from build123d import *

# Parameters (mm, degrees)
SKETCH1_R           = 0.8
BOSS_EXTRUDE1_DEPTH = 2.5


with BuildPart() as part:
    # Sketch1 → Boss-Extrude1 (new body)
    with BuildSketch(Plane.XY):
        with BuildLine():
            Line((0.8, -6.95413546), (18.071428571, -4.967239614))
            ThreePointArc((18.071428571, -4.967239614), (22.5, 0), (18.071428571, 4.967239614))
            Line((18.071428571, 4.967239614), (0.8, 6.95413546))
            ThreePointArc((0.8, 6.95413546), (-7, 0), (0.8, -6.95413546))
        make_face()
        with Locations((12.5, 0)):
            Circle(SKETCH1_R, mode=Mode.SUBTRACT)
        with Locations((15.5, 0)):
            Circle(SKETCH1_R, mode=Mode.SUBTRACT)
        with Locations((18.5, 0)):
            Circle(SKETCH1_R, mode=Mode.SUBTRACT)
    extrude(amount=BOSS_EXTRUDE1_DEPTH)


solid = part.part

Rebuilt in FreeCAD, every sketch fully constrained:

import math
import FreeCAD as App
import Part
import Sketcher
from FreeCAD import Vector
Q = App.Units.Quantity

doc = App.newDocument("Part")
params = doc.addObject("Spreadsheet::Sheet", "Params")
for row, (alias, value) in enumerate([
    ("sketch1_radius", "5 mm"),
    ("sketch1_radius2", "7 mm"),
    ("sketch1_diameter", "1.6 mm"),
    ("pad1_length", "2.5 mm"),
], start=1):
    params.set(f"A{row}", alias)
    params.set(f"B{row}", "=" + value)
    params.setAlias(f"B{row}", alias)

body = doc.addObject("PartDesign::Body", "Body")

sketch1 = body.newObject("Sketcher::SketchObject", "Sketch")
sketch1.AttachmentSupport = (doc.getObject("XY_Plane"), [""])
sketch1.MapMode = "FlatFace"
sketch1.addGeometry([
    Part.LineSegment(Vector(0.8, -7, 0), Vector(18.1, -5, 0)),
    Part.ArcOfCircle(Part.Circle(Vector(17.5, 0, 0), Vector(0, 0, 1), 5), math.radians(-83), math.radians(83)),
    Part.LineSegment(Vector(18.1, 5, 0), Vector(0.8, 7, 0)),
    Part.ArcOfCircle(Part.Circle(Vector(0, 0, 0), Vector(0, 0, 1), 7), math.radians(83), math.radians(277)),
    Part.Circle(Vector(12.5, 0, 0), Vector(0, 0, 1), 0.8),
    Part.Circle(Vector(15.5, 0, 0), Vector(0, 0, 1), 0.8),
    Part.Circle(Vector(18.5, 0, 0), Vector(0, 0, 1), 0.8),
], False)
sketch1.addConstraint([
    Sketcher.Constraint("Tangent", 0, 2, 1, 1),
    Sketcher.Constraint("Tangent", 1, 2, 2, 1),
    Sketcher.Constraint("Tangent", 2, 2, 3, 1),
    Sketcher.Constraint("Tangent", 3, 2, 0, 1),
    Sketcher.Constraint("Coincident", 3, 3, -1, 1),
    Sketcher.Constraint("Equal", 4, 5),
    Sketcher.Constraint("Equal", 5, 6),
    Sketcher.Constraint("PointOnObject", 1, 3, -1),
    Sketcher.Constraint("PointOnObject", 4, 3, -1),
    Sketcher.Constraint("PointOnObject", 5, 3, -1),
    Sketcher.Constraint("PointOnObject", 6, 3, -1),
    Sketcher.Constraint("Radius", 1, Q("5 mm")),
    Sketcher.Constraint("Radius", 3, Q("7 mm")),
    Sketcher.Constraint("Diameter", 4, Q("1.6 mm")),
    Sketcher.Constraint("DistanceX", 4, 3, 1, 3, Q("5 mm")),
    Sketcher.Constraint("DistanceX", 5, 3, 1, 3, Q("2 mm")),
    Sketcher.Constraint("DistanceX", 1, 3, 6, 3, Q("1 mm")),
    Sketcher.Constraint("DistanceX", -1, 1, 1, 3, Q("17.5 mm")),
])
sketch1.setExpression("Constraints[11]", "Params.sketch1_radius")
sketch1.setExpression("Constraints[12]", "Params.sketch1_radius2")
sketch1.setExpression("Constraints[13]", "Params.sketch1_diameter")
pad1 = body.newObject("PartDesign::Pad", "Pad")
pad1.Profile = sketch1
pad1.setExpression("Length", "Params.pad1_length")

doc.recompute()
